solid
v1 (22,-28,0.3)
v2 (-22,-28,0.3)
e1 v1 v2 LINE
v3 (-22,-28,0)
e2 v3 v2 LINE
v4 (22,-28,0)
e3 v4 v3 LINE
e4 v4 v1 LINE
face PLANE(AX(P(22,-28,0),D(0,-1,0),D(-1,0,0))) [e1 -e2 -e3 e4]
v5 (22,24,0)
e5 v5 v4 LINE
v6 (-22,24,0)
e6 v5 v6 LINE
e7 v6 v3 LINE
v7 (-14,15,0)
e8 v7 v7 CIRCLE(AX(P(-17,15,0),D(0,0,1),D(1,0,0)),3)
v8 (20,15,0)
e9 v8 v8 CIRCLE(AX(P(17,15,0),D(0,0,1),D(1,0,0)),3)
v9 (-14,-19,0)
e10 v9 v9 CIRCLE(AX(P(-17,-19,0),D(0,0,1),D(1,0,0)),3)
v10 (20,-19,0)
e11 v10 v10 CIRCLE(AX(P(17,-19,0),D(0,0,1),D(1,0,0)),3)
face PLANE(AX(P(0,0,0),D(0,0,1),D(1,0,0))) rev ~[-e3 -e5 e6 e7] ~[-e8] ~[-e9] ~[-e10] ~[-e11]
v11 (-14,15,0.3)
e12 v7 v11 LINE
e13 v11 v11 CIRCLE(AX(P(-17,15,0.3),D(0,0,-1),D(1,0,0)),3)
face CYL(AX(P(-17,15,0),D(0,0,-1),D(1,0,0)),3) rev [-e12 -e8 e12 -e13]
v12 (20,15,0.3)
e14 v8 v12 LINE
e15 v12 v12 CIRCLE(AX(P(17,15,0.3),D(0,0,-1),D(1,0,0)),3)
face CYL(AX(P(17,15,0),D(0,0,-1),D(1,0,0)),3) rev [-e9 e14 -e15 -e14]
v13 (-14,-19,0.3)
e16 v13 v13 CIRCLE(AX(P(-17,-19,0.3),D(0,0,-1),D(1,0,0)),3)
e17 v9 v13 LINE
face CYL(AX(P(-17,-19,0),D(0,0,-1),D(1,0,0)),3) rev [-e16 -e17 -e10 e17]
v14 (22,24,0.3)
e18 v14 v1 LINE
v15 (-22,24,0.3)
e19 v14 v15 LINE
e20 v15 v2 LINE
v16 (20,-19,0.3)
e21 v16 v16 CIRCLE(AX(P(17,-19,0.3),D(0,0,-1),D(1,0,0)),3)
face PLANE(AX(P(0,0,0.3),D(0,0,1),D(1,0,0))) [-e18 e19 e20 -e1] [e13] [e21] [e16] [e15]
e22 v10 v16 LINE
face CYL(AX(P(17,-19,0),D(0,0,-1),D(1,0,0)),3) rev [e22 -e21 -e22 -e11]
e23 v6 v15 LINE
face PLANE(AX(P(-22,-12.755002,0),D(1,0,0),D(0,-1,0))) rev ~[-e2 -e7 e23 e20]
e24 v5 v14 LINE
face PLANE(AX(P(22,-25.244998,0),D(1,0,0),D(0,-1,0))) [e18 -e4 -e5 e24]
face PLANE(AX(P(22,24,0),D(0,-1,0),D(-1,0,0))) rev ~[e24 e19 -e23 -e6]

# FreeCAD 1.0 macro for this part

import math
import FreeCAD as App
import Part
import Sketcher

V = App.Vector
Q = App.Units.Quantity

doc = App.newDocument("Part")
params = doc.addObject("Spreadsheet::Sheet", "Params")
for row, (alias, value) in enumerate([
    ("sketch1_diameter", "6 mm"),
    ("sketch1_radius", "8 mm"),
    ("sketch1_width", "44 mm"),
    ("sketch1_width2", "5 mm"),
    ("sketch1_height", "34 mm"),
    ("pad1_length", "1.5 mm"),
    ("sketch2_diameter", "1.6 mm"),
    ("pocket1_length", "1.5 mm"),
    ("sketch3_diameter", "1.6 mm"),
    ("pocket2_length", "1.5 mm"),
    ("sketch4_height", "70 mm"),
    ("pocket3_length", "1.2 mm"),
    ("sketch5_radius", "8 mm"),
    ("sketch5_diameter", "1.6 mm"),
    ("sketch5_width", "5 mm"),
    ("sketch5_height", "34 mm"),
    ("sketch5_width2", "3.5 mm"),
    ("pad2_length", "0.3 mm"),
], start=1):
    params.set(f"A{row}", alias)
    params.set(f"B{row}", "=" + value)
    params.setAlias(f"B{row}", alias)

body = doc.addObject("PartDesign::Body", "Body")

sketch1 = body.newObject("Sketcher::SketchObject", "Sketch")
sketch1.AttachmentSupport = (doc.getObject("XY_Plane"), [""])
sketch1.MapMode = "FlatFace"
sketch1.addGeometry([
    Part.LineSegment(V(-22, -28, 0), V(22, -28, 0)),
    Part.LineSegment(V(22, -28, 0), V(22, 24, 0)),
    Part.LineSegment(V(22, 24, 0), V(-22, 24, 0)),
    Part.LineSegment(V(-22, 24, 0), V(-22, -28, 0)),
    Part.Circle(V(-17, -19, 0), V(0, 0, 1), 3),
    Part.LineSegment(V(-18.5, -11.1, 0), V(-18.5, 7.1, 0)),
    Part.ArcOfCircle(Part.Circle(V(-17, 15, 0), V(0, 0, 1), 8), math.radians(-101), math.radians(-64)),
    Part.LineSegment(V(-13.5, 7.8, 0), V(-13.5, -11.8, 0)),
    Part.ArcOfCircle(Part.Circle(V(-17, -19, 0), V(0, 0, 1), 8), math.radians(64), math.radians(101)),
    Part.ArcOfCircle(Part.Circle(V(-17, -19, 0), V(0, 0, 1), 8), math.radians(0), math.radians(36)),
    Part.LineSegment(V(-10.5, -14.3, 0), V(-10.5, 10.3, 0)),
    Part.ArcOfCircle(Part.Circle(V(-17, 15, 0), V(0, 0, 1), 8), math.radians(-36), math.radians(0)),
    Part.LineSegment(V(-9, 15, 0), V(-5.5, 15, 0)),
    Part.LineSegment(V(-5.5, 15, 0), V(-5.5, -19, 0)),
    Part.LineSegment(V(-5.5, -19, 0), V(-9, -19, 0)),
    Part.LineSegment(V(2.5, -19, 0), V(-2.5, -19, 0)),
    Part.LineSegment(V(-2.5, -19, 0), V(-2.5, 15, 0)),
    Part.LineSegment(V(-2.5, 15, 0), V(2.5, 15, 0)),
    Part.LineSegment(V(2.5, 15, 0), V(2.5, -19, 0)),
    Part.LineSegment(V(9, -19, 0), V(5.5, -19, 0)),
    Part.LineSegment(V(5.5, -19, 0), V(5.5, 15, 0)),
    Part.LineSegment(V(5.5, 15, 0), V(9, 15, 0)),
    Part.ArcOfCircle(Part.Circle(V(17, 15, 0), V(0, 0, 1), 8), math.radians(180), math.radians(216)),
    Part.LineSegment(V(10.5, 10.3, 0), V(10.5, -14.3, 0)),
    Part.ArcOfCircle(Part.Circle(V(17, -19, 0), V(0, 0, 1), 8), math.radians(144), math.radians(180)),
    Part.Circle(V(-17, 15, 0), V(0, 0, 1), 3),
    Part.Circle(V(17, -19, 0), V(0, 0, 1), 3),
    Part.LineSegment(V(13.5, -11.8, 0), V(13.5, 7.8, 0)),
    Part.ArcOfCircle(Part.Circle(V(17, 15, 0), V(0, 0, 1), 8), math.radians(-116), math.radians(-79)),
    Part.LineSegment(V(18.5, 7.1, 0), V(18.5, -11.1, 0)),
    Part.ArcOfCircle(Part.Circle(V(17, -19, 0), V(0, 0, 1), 8), math.radians(79), math.radians(116)),
    Part.Circle(V(17, 15, 0), V(0, 0, 1), 3),
], False)
sketch1.addConstraint([
    Sketcher.Constraint("Coincident", 0, 2, 1, 1),
    Sketcher.Constraint("Coincident", 1, 2, 2, 1),
    Sketcher.Constraint("Coincident", 2, 2, 3, 1),
    Sketcher.Constraint("Coincident", 3, 2, 0, 1),
    Sketcher.Constraint("Coincident", 5, 2, 6, 1),
    Sketcher.Constraint("Coincident", 6, 2, 7, 1),
    Sketcher.Constraint("Coincident", 7, 2, 8, 1),
    Sketcher.Constraint("Coincident", 8, 2, 5, 1),
    Sketcher.Constraint("Coincident", 9, 2, 10, 1),
    Sketcher.Constraint("Coincident", 10, 2, 11, 1),
    Sketcher.Constraint("Coincident", 11, 2, 12, 1),
    Sketcher.Constraint("Coincident", 12, 2, 13, 1),
    Sketcher.Constraint("Coincident", 13, 2, 14, 1),
    Sketcher.Constraint("Coincident", 14, 2, 9, 1),
    Sketcher.Constraint("Coincident", 15, 2, 16, 1),
    Sketcher.Constraint("Coincident", 16, 2, 17, 1),
    Sketcher.Constraint("Coincident", 17, 2, 18, 1),
    Sketcher.Constraint("Coincident", 18, 2, 15, 1),
    Sketcher.Constraint("Coincident", 19, 2, 20, 1),
    Sketcher.Constraint("Coincident", 20, 2, 21, 1),
    Sketcher.Constraint("Coincident", 21, 2, 22, 1),
    Sketcher.Constraint("Coincident", 22, 2, 23, 1),
    Sketcher.Constraint("Coincident", 23, 2, 24, 1),
    Sketcher.Constraint("Coincident", 24, 2, 19, 1),
    Sketcher.Constraint("Coincident", 27, 2, 28, 1),
    Sketcher.Constraint("Coincident", 28, 2, 29, 1),
    Sketcher.Constraint("Coincident", 29, 2, 30, 1),
    Sketcher.Constraint("Coincident", 30, 2, 27, 1),
    Sketcher.Constraint("Horizontal", 0),
    Sketcher.Constraint("Vertical", 1),
    Sketcher.Constraint("Horizontal", 2),
    Sketcher.Constraint("Vertical", 3),
    Sketcher.Constraint("Vertical", 5),
    Sketcher.Constraint("Vertical", 7),
    Sketcher.Constraint("Vertical", 10),
    Sketcher.Constraint("Horizontal", 12),
    Sketcher.Constraint("Vertical", 13),
    Sketcher.Constraint("Horizontal", 14),
    Sketcher.Constraint("Horizontal", 15),
    Sketcher.Constraint("Vertical", 16),
    Sketcher.Constraint("Horizontal", 17),
    Sketcher.Constraint("Vertical", 18),
    Sketcher.Constraint("Horizontal", 19),
    Sketcher.Constraint("Vertical", 20),
    Sketcher.Constraint("Horizontal", 21),
    Sketcher.Constraint("Vertical", 23),
    Sketcher.Constraint("Vertical", 27),
    Sketcher.Constraint("Vertical", 29),
    Sketcher.Constraint("Coincident", 8, 3, 4, 3),
    Sketcher.Constraint("Coincident", 9, 3, 4, 3),
    Sketcher.Constraint("Coincident", 11, 3, 6, 3),
    Sketcher.Constraint("Coincident", 25, 3, 6, 3),
    Sketcher.Constraint("Coincident", 26, 3, 24, 3),
    Sketcher.Constraint("Coincident", 28, 3, 22, 3),
    Sketcher.Constraint("Coincident", 30, 3, 24, 3),
    Sketcher.Constraint("Coincident", 31, 3, 22, 3),
    Sketcher.Constraint("Equal", 6, 8),
    Sketcher.Constraint("Equal", 8, 9),
    Sketcher.Constraint("Equal", 9, 11),
    Sketcher.Constraint("Equal", 11, 22),
    Sketcher.Constraint("Equal", 22, 24),
    Sketcher.Constraint("Equal", 4, 25),
    Sketcher.Constraint("Equal", 25, 26),
    Sketcher.Constraint("Equal", 24, 28),
    Sketcher.Constraint("Equal", 28, 30),
    Sketcher.Constraint("Equal", 26, 31),
    Sketcher.Constraint("Symmetric", 6, 3, 22, 3, -2),
    Sketcher.Constraint("Symmetric", 4, 3, 24, 3, -2),
    Sketcher.Constraint("Symmetric", 13, 2, 19, 2, -2),
    Sketcher.Constraint("Horizontal", 31, 3, 11, 2),
    Sketcher.Constraint("Horizontal", 30, 3, 13, 2),
    Sketcher.Constraint("Horizontal", 14, 2, 15, 2),
    Sketcher.Constraint("Horizontal", 12, 2, 16, 2),
    Sketcher.Constraint("Horizontal", 17, 2, 20, 2),
    Sketcher.Constraint("Horizontal", 10, 2, 22, 2),
    Sketcher.Constraint("Horizontal", 6, 2, 27, 2),
    Sketcher.Constraint("Horizontal", 5, 2, 28, 2),
    Sketcher.Constraint("Vertical", 4, 3, 6, 3),
    Sketcher.Constraint("Diameter", 4, Q("6 mm")),
    Sketcher.Constraint("Radius", 6, Q("8 mm")),
    Sketcher.Constraint("DistanceX", 0, 1, 0, 2, Q("44 mm")),
    Sketcher.Constraint("DistanceX", 15, 2, 15, 1, Q("5 mm")),
    Sketcher.Constraint("DistanceY", 13, 2, 13, 1, Q("34 mm")),
    Sketcher.Constraint("DistanceX", 6, 3, 22, 3, Q("34 mm")),
    Sketcher.Constraint("DistanceX", 24, 3, 0, 2, Q("5 mm")),
    Sketcher.Constraint("DistanceX", 5, 2, 6, 2, Q("5 mm")),
    Sketcher.Constraint("DistanceX", 8, 2, 9, 2, Q("8 mm")),
    Sketcher.Constraint("DistanceX", 10, 2, 12, 2, Q("5 mm")),
    Sketcher.Constraint("DistanceX", 9, 2, 15, 2, Q("8 mm")),
    Sketcher.Constraint("DistanceX", 15, 2, 19, 2, Q("8 mm")),
    Sketcher.Constraint("DistanceY", 1, 1, 1, 2, Q("52 mm")),
    Sketcher.Constraint("DistanceY", 4, 3, -1, 1, Q("19 mm")),
    Sketcher.Constraint("DistanceY", 0, 2, -1, 1, Q("28 mm")),
])
sketch1.setExpression("Constraints[78]", "Params.sketch1_diameter")
sketch1.setExpression("Constraints[79]", "Params.sketch1_radius")
sketch1.setExpression("Constraints[80]", "Params.sketch1_width")
sketch1.setExpression("Constraints[81]", "Params.sketch1_width2")
sketch1.setExpression("Constraints[82]", "Params.sketch1_height")
pad1 = body.newObject("PartDesign::Pad", "Pad")
pad1.Profile = sketch1
pad1.setExpression("Length", "Params.pad1_length")

sketch2 = body.newObject("Sketcher::SketchObject", "Sketch001")
sketch2.AttachmentSupport = (doc.getObject("XY_Plane"), [""])
sketch2.MapMode = "FlatFace"
sketch2.AttachmentOffset = App.Placement(V(0, 0, 1.5), App.Rotation())
sketch2.addGeometry([
    Part.Circle(V(12.3, -14.8, 0), V(0, 0, 1), 0.8),
    Part.Circle(V(14, -23.2, 0), V(0, 0, 1), 0.8),
    Part.Circle(V(-12.3, -14.8, 0), V(0, 0, 1), 0.8),
    Part.Circle(V(-14, -23.2, 0), V(0, 0, 1), 0.8),
], False)
sketch2.addConstraint([
    Sketcher.Constraint("Equal", 0, 1),
    Sketcher.Constraint("Equal", 1, 2),
    Sketcher.Constraint("Equal", 2, 3),
    Sketcher.Constraint("Symmetric", 0, 3, 2, 3, -2),
    Sketcher.Constraint("Symmetric", 1, 3, 3, 3, -2),
    Sketcher.Constraint("Diameter", 0, Q("1.6 mm")),
    Sketcher.Constraint("DistanceX", -1, 1, 1, 3, Q("14 mm")),
    Sketcher.Constraint("DistanceX", -1, 1, 0, 3, Q("12.3 mm")),
    Sketcher.Constraint("DistanceY", 0, 3, -1, 1, Q("14.8 mm")),
    Sketcher.Constraint("DistanceY", 1, 3, -1, 1, Q("23.2 mm")),
])
sketch2.setExpression("Constraints[5]", "Params.sketch2_diameter")
pocket1 = body.newObject("PartDesign::Pocket", "Pocket")
pocket1.Profile = sketch2
pocket1.setExpression("Length", "Params.pocket1_length")

sketch3 = body.newObject("Sketcher::SketchObject", "Sketch002")
sketch3.AttachmentSupport = (doc.getObject("XY_Plane"), [""])
sketch3.MapMode = "FlatFace"
sketch3.AttachmentOffset = App.Placement(V(0, 0, 1.5), App.Rotation())
sketch3.addGeometry([
    Part.Circle(V(0, 19, 0), V(0, 0, 1), 0.8),
    Part.Circle(V(-10, 19, 0), V(0, 0, 1), 0.8),
    Part.Circle(V(10, 19, 0), V(0, 0, 1), 0.8),
], False)
sketch3.addConstraint([
    Sketcher.Constraint("Equal", 0, 1),
    Sketcher.Constraint("Equal", 1, 2),
    Sketcher.Constraint("Symmetric", 1, 3, 2, 3, -2),
    Sketcher.Constraint("PointOnObject", 0, 3, -2),
    Sketcher.Constraint("Horizontal", 0, 3, 1, 3),
    Sketcher.Constraint("Diameter", 0, Q("1.6 mm")),
    Sketcher.Constraint("DistanceX", 1, 3, -1, 1, Q("10 mm")),
    Sketcher.Constraint("DistanceY", -1, 1, 0, 3, Q("19 mm")),
])
sketch3.setExpression("Constraints[5]", "Params.sketch3_diameter")
pocket2 = body.newObject("PartDesign::Pocket", "Pocket001")
pocket2.Profile = sketch3
pocket2.setExpression("Length", "Params.pocket2_length")

sketch4 = body.newObject("Sketcher::SketchObject", "Sketch003")
sketch4.AttachmentSupport = (doc.getObject("XY_Plane"), [""])
sketch4.MapMode = "FlatFace"
sketch4.AttachmentOffset = App.Placement(V(0, 0, 1.5), App.Rotation())
sketch4.addGeometry([
    Part.LineSegment(V(50, 30, 0), V(-32, 30, 0)),
    Part.LineSegment(V(-32, 30, 0), V(-32, -40, 0)),
    Part.LineSegment(V(-32, -40, 0), V(50, -40, 0)),
    Part.LineSegment(V(50, -40, 0), V(50, 30, 0)),
], False)
sketch4.addConstraint([
    Sketcher.Constraint("Coincident", 0, 2, 1, 1),
    Sketcher.Constraint("Coincident", 1, 2, 2, 1),
    Sketcher.Constraint("Coincident", 2, 2, 3, 1),
    Sketcher.Constraint("Coincident", 3, 2, 0, 1),
    Sketcher.Constraint("Horizontal", 0),
    Sketcher.Constraint("Vertical", 1),
    Sketcher.Constraint("Horizontal", 2),
    Sketcher.Constraint("Vertical", 3),
    Sketcher.Constraint("DistanceY", 1, 2, 1, 1, Q("70 mm")),
    Sketcher.Constraint("DistanceY", -1, 1, 0, 2, Q("30 mm")),
    Sketcher.Constraint("DistanceX", -1, 1, 2, 2, Q("50 mm")),
    Sketcher.Constraint("DistanceX", 0, 2, 0, 1, Q("82.0708 mm")),
])
sketch4.setExpression("Constraints[8]", "Params.sketch4_height")
pocket3 = body.newObject("PartDesign::Pocket", "Pocket002")
pocket3.Profile = sketch4
pocket3.setExpression("Length", "Params.pocket3_length")

sketch5 = body.newObject("Sketcher::SketchObject", "Sketch004")
sketch5.AttachmentSupport = (doc.getObject("XY_Plane"), [""])
sketch5.MapMode = "FlatFace"
sketch5.AttachmentOffset = App.Placement(V(0, 0, 0.3), App.Rotation())
sketch5.addGeometry([
    Part.Circle(V(-10, 19, 0), V(0, 0, 1), 0.8),
    Part.Circle(V(0, 19, 0), V(0, 0, 1), 0.8),
    Part.Circle(V(10, 19, 0), V(0, 0, 1), 0.8),
    Part.Circle(V(-12.3, -14.8, 0), V(0, 0, 1), 0.8),
    Part.Circle(V(12.3, -14.8, 0), V(0, 0, 1), 0.8),
    Part.Circle(V(14, -23.2, 0), V(0, 0, 1), 0.8),
    Part.Circle(V(-14, -23.2, 0), V(0, 0, 1), 0.8),
    Part.ArcOfCircle(Part.Circle(V(17, 15, 0), V(0, 0, 1), 8), math.radians(-116), math.radians(-79)),
    Part.LineSegment(V(13.5, 7.8, 0), V(13.5, -11.8, 0)),
    Part.ArcOfCircle(Part.Circle(V(17, -19, 0), V(0, 0, 1), 8), math.radians(79), math.radians(116)),
    Part.LineSegment(V(18.5, -11.1, 0), V(18.5, 7.1, 0)),
    Part.ArcOfCircle(Part.Circle(V(-17, -19, 0), V(0, 0, 1), 8), math.radians(64), math.radians(101)),
    Part.LineSegment(V(-13.5, -11.8, 0), V(-13.5, 7.8, 0)),
    Part.ArcOfCircle(Part.Circle(V(-17, 15, 0), V(0, 0, 1), 8), math.radians(-101), math.radians(-64)),
    Part.LineSegment(V(-18.5, 7.1, 0), V(-18.5, -11.1, 0)),
    Part.ArcOfCircle(Part.Circle(V(17, -19, 0), V(0, 0, 1), 8), math.radians(144), math.radians(180)),
    Part.LineSegment(V(10.5, -14.3, 0), V(10.5, 10.3, 0)),
    Part.ArcOfCircle(Part.Circle(V(17, 15, 0), V(0, 0, 1), 8), math.radians(180), math.radians(216)),
    Part.LineSegment(V(9, 15, 0), V(5.5, 15, 0)),
    Part.LineSegment(V(5.5, 15, 0), V(5.5, -19, 0)),
    Part.LineSegment(V(5.5, -19, 0), V(9, -19, 0)),
    Part.LineSegment(V(-2.5, 15, 0), V(-2.5, -19, 0)),
    Part.LineSegment(V(-2.5, -19, 0), V(2.5, -19, 0)),
    Part.LineSegment(V(2.5, -19, 0), V(2.5, 15, 0)),
    Part.LineSegment(V(2.5, 15, 0), V(-2.5, 15, 0)),
    Part.ArcOfCircle(Part.Circle(V(-17, -19, 0), V(0, 0, 1), 8), math.radians(0), math.radians(36)),
    Part.LineSegment(V(-9, -19, 0), V(-5.5, -19, 0)),
    Part.LineSegment(V(-5.5, -19, 0), V(-5.5, 15, 0)),
    Part.LineSegment(V(-5.5, 15, 0), V(-9, 15, 0)),
    Part.ArcOfCircle(Part.Circle(V(-17, 15, 0), V(0, 0, 1), 8), math.radians(-36), math.radians(0)),
    Part.LineSegment(V(-10.5, 10.3, 0), V(-10.5, -14.3, 0)),
], False)
sketch5.addConstraint([
    Sketcher.Constraint("Coincident", 7, 1, 8, 1),
    Sketcher.Constraint("Coincident", 8, 2, 9, 2),
    Sketcher.Constraint("Coincident", 9, 1, 10, 1),
    Sketcher.Constraint("Coincident", 10, 2, 7, 2),
    Sketcher.Constraint("Coincident", 11, 1, 12, 1),
    Sketcher.Constraint("Coincident", 12, 2, 13, 2),
    Sketcher.Constraint("Coincident", 13, 1, 14, 1),
    Sketcher.Constraint("Coincident", 14, 2, 11, 2),
    Sketcher.Constraint("Coincident", 15, 1, 16, 1),
    Sketcher.Constraint("Coincident", 16, 2, 17, 2),
    Sketcher.Constraint("Coincident", 17, 1, 18, 1),
    Sketcher.Constraint("Coincident", 18, 2, 19, 1),
    Sketcher.Constraint("Coincident", 19, 2, 20, 1),
    Sketcher.Constraint("Coincident", 20, 2, 15, 2),
    Sketcher.Constraint("Coincident", 21, 2, 22, 1),
    Sketcher.Constraint("Coincident", 22, 2, 23, 1),
    Sketcher.Constraint("Coincident", 23, 2, 24, 1),
    Sketcher.Constraint("Coincident", 24, 2, 21, 1),
    Sketcher.Constraint("Coincident", 25, 1, 26, 1),
    Sketcher.Constraint("Coincident", 26, 2, 27, 1),
    Sketcher.Constraint("Coincident", 27, 2, 28, 1),
    Sketcher.Constraint("Coincident", 28, 2, 29, 2),
    Sketcher.Constraint("Coincident", 29, 1, 30, 1),
    Sketcher.Constraint("Coincident", 30, 2, 25, 2),
    Sketcher.Constraint("Vertical", 8),
    Sketcher.Constraint("Vertical", 10),
    Sketcher.Constraint("Vertical", 12),
    Sketcher.Constraint("Vertical", 14),
    Sketcher.Constraint("Vertical", 16),
    Sketcher.Constraint("Horizontal", 18),
    Sketcher.Constraint("Vertical", 19),
    Sketcher.Constraint("Horizontal", 20),
    Sketcher.Constraint("Vertical", 21),
    Sketcher.Constraint("Horizontal", 22),
    Sketcher.Constraint("Vertical", 23),
    Sketcher.Constraint("Horizontal", 24),
    Sketcher.Constraint("Horizontal", 26),
    Sketcher.Constraint("Vertical", 27),
    Sketcher.Constraint("Horizontal", 28),
    Sketcher.Constraint("Vertical", 30),
    Sketcher.Constraint("Coincident", 15, 3, 9, 3),
    Sketcher.Constraint("Coincident", 17, 3, 7, 3),
    Sketcher.Constraint("Coincident", 25, 3, 11, 3),
    Sketcher.Constraint("Coincident", 29, 3, 13, 3),
    Sketcher.Constraint("Equal", 0, 1),
    Sketcher.Constraint("Equal", 1, 2),
    Sketcher.Constraint("Equal", 2, 3),
    Sketcher.Constraint("Equal", 3, 4),
    Sketcher.Constraint("Equal", 4, 5),
    Sketcher.Constraint("Equal", 5, 6),
    Sketcher.Constraint("Equal", 7, 9),
    Sketcher.Constraint("Equal", 9, 11),
    Sketcher.Constraint("Equal", 11, 13),
    Sketcher.Constraint("Equal", 13, 15),
    Sketcher.Constraint("Equal", 15, 17),
    Sketcher.Constraint("Equal", 17, 25),
    Sketcher.Constraint("Equal", 25, 29),
    Sketcher.Constraint("Symmetric", 0, 3, 2, 3, -2),
    Sketcher.Constraint("Symmetric", 3, 3, 4, 3, -2),
    Sketcher.Constraint("Symmetric", 5, 3, 6, 3, -2),
    Sketcher.Constraint("Symmetric", 9, 3, 11, 3, -2),
    Sketcher.Constraint("Symmetric", 7, 3, 13, 3, -2),
    Sketcher.Constraint("Symmetric", 19, 2, 26, 2, -2),
    Sketcher.Constraint("PointOnObject", 1, 3, -2),
    Sketcher.Constraint("Horizontal", 0, 3, 1, 3),
    Sketcher.Constraint("Horizontal", 8, 2, 11, 1),
    Sketcher.Constraint("Horizontal", 10, 2, 13, 1),
    Sketcher.Constraint("Horizontal", 29, 3, 17, 1),
    Sketcher.Constraint("Horizontal", 25, 3, 19, 2),
    Sketcher.Constraint("Horizontal", 20, 2, 21, 2),
    Sketcher.Constraint("Horizontal", 18, 2, 23, 2),
    Sketcher.Constraint("Horizontal", 24, 2, 27, 2),
    Sketcher.Constraint("Horizontal", 16, 2, 29, 1),
    Sketcher.Constraint("Vertical", 7, 3, 9, 3),
    Sketcher.Constraint("Radius", 7, Q("8 mm")),
    Sketcher.Constraint("Diameter", 0, Q("1.6 mm")),
    Sketcher.Constraint("DistanceX", 22, 1, 22, 2, Q("5 mm")),
    Sketcher.Constraint("DistanceY", 19, 2, 19, 1, Q("34 mm")),
    Sketcher.Constraint("DistanceX", 18, 2, 18, 1, Q("3.5 mm")),
    Sketcher.Constraint("DistanceX", 0, 3, -1, 1, Q("10 mm")),
    Sketcher.Constraint("DistanceY", -1, 1, 0, 3, Q("19 mm")),
    Sketcher.Constraint("DistanceX", -1, 1, 5, 3, Q("14 mm")),
    Sketcher.Constraint("DistanceX", -1, 1, 7, 3, Q("17 mm")),
    Sketcher.Constraint("DistanceY", -1, 1, 7, 3, Q("15 mm")),
    Sketcher.Constraint("DistanceX", 8, 2, 9, 1, Q("5 mm")),
    Sketcher.Constraint("DistanceX", 15, 1, 8, 2, Q("3 mm")),
    Sketcher.Constraint("DistanceX", 18, 2, 16, 2, Q("5 mm")),
    Sketcher.Constraint("DistanceX", 21, 2, 19, 2, Q("8 mm")),
    Sketcher.Constraint("DistanceX", 3, 3, -1, 1, Q("12.3 mm")),
    Sketcher.Constraint("DistanceY", 3, 3, -1, 1, Q("14.8 mm")),
    Sketcher.Constraint("DistanceY", 5, 3, -1, 1, Q("23.2 mm")),
])
sketch5.setExpression("Constraints[74]", "Params.sketch5_radius")
sketch5.setExpression("Constraints[75]", "Params.sketch5_diameter")
sketch5.setExpression("Constraints[76]", "Params.sketch5_width")
sketch5.setExpression("Constraints[77]", "Params.sketch5_height")
sketch5.setExpression("Constraints[78]", "Params.sketch5_width2")
pad2 = body.newObject("PartDesign::Pad", "Pad001")
pad2.Profile = sketch5
pad2.setExpression("Length", "Params.pad2_length")
pad2.Reversed = True

doc.recompute()
